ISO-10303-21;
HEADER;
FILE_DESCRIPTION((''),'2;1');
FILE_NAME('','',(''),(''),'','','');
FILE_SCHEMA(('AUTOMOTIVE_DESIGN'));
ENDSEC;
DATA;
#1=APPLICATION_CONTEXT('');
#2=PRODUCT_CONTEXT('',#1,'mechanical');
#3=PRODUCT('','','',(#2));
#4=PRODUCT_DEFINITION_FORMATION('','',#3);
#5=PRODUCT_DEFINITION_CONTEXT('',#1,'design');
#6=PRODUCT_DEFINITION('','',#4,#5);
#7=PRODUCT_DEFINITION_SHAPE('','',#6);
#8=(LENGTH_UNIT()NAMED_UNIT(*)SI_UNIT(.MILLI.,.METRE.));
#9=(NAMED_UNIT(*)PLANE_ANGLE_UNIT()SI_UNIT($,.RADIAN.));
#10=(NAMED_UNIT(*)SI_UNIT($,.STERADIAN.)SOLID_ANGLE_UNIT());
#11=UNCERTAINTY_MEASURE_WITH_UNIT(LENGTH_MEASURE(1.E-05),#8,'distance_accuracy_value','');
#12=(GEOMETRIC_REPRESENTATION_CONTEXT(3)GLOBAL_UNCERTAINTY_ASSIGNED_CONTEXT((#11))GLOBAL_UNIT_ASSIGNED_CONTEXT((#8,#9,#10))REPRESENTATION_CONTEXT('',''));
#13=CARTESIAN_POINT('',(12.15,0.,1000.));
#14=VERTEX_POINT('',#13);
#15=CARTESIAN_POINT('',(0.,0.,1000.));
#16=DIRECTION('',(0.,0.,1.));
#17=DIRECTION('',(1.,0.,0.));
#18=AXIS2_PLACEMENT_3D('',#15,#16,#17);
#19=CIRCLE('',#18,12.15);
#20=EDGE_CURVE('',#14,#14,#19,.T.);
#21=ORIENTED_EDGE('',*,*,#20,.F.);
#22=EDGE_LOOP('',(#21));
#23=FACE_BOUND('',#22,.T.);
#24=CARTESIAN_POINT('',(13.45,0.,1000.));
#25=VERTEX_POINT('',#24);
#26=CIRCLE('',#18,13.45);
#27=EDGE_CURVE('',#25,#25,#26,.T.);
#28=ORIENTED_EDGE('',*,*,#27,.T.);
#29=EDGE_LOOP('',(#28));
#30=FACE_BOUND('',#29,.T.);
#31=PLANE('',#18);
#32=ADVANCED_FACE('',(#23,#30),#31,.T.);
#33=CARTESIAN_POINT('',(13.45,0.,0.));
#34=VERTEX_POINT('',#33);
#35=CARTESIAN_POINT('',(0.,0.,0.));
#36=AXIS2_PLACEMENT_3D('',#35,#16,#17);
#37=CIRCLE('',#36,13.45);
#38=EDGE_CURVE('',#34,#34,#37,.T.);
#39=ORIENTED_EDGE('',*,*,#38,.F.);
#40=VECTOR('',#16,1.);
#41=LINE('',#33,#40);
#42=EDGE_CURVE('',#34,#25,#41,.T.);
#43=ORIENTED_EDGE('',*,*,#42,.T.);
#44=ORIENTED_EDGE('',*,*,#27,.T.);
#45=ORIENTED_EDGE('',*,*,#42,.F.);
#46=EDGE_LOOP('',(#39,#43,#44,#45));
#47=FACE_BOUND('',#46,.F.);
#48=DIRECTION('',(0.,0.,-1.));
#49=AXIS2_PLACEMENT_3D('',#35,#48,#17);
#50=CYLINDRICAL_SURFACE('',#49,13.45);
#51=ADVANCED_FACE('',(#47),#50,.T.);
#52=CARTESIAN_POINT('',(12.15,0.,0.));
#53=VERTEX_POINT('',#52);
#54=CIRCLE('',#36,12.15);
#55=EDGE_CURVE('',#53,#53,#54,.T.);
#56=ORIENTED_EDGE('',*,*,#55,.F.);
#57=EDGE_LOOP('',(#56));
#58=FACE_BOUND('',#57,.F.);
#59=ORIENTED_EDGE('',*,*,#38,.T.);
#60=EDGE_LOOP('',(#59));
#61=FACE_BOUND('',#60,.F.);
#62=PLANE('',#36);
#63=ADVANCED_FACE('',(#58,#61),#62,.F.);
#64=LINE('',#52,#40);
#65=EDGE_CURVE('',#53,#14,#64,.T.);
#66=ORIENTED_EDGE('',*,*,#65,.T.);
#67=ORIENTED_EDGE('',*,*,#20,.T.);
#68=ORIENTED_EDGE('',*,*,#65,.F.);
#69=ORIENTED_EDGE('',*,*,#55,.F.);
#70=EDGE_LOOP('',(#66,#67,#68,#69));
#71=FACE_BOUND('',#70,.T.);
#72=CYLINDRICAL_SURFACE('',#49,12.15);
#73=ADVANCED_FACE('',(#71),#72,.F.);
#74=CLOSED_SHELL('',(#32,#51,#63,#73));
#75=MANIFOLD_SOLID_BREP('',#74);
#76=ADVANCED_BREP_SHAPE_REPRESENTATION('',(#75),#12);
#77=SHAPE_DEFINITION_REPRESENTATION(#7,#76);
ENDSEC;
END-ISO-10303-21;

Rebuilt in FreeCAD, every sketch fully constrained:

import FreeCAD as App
import Part
import Sketcher

doc = App.newDocument("Part")
body = doc.addObject("PartDesign::Body", "Body")

sketch1 = body.newObject("Sketcher::SketchObject", "Sketch")
sketch1.AttachmentSupport = (doc.getObject("XY_Plane"), [""])
sketch1.MapMode = "FlatFace"
sketch1.addGeometry(Part.Circle(App.Vector(0, 0, 0), App.Vector(0, 0, 1), 13), False)
sketch1.addGeometry(Part.Circle(App.Vector(0, 0, 0), App.Vector(0, 0, 1), 12), False)
sketch1.addConstraint(Sketcher.Constraint("Coincident", 0, 3, -1, 1))
sketch1.addConstraint(Sketcher.Constraint("Coincident", 1, 3, -1, 1))
sketch1.addConstraint(Sketcher.Constraint("Diameter", 0, 26.9))
sketch1.addConstraint(Sketcher.Constraint("Diameter", 1, 24.3))
pad1 = body.newObject("PartDesign::Pad", "Pad")
pad1.Profile = sketch1
pad1.Length = 1000

doc.recompute()
